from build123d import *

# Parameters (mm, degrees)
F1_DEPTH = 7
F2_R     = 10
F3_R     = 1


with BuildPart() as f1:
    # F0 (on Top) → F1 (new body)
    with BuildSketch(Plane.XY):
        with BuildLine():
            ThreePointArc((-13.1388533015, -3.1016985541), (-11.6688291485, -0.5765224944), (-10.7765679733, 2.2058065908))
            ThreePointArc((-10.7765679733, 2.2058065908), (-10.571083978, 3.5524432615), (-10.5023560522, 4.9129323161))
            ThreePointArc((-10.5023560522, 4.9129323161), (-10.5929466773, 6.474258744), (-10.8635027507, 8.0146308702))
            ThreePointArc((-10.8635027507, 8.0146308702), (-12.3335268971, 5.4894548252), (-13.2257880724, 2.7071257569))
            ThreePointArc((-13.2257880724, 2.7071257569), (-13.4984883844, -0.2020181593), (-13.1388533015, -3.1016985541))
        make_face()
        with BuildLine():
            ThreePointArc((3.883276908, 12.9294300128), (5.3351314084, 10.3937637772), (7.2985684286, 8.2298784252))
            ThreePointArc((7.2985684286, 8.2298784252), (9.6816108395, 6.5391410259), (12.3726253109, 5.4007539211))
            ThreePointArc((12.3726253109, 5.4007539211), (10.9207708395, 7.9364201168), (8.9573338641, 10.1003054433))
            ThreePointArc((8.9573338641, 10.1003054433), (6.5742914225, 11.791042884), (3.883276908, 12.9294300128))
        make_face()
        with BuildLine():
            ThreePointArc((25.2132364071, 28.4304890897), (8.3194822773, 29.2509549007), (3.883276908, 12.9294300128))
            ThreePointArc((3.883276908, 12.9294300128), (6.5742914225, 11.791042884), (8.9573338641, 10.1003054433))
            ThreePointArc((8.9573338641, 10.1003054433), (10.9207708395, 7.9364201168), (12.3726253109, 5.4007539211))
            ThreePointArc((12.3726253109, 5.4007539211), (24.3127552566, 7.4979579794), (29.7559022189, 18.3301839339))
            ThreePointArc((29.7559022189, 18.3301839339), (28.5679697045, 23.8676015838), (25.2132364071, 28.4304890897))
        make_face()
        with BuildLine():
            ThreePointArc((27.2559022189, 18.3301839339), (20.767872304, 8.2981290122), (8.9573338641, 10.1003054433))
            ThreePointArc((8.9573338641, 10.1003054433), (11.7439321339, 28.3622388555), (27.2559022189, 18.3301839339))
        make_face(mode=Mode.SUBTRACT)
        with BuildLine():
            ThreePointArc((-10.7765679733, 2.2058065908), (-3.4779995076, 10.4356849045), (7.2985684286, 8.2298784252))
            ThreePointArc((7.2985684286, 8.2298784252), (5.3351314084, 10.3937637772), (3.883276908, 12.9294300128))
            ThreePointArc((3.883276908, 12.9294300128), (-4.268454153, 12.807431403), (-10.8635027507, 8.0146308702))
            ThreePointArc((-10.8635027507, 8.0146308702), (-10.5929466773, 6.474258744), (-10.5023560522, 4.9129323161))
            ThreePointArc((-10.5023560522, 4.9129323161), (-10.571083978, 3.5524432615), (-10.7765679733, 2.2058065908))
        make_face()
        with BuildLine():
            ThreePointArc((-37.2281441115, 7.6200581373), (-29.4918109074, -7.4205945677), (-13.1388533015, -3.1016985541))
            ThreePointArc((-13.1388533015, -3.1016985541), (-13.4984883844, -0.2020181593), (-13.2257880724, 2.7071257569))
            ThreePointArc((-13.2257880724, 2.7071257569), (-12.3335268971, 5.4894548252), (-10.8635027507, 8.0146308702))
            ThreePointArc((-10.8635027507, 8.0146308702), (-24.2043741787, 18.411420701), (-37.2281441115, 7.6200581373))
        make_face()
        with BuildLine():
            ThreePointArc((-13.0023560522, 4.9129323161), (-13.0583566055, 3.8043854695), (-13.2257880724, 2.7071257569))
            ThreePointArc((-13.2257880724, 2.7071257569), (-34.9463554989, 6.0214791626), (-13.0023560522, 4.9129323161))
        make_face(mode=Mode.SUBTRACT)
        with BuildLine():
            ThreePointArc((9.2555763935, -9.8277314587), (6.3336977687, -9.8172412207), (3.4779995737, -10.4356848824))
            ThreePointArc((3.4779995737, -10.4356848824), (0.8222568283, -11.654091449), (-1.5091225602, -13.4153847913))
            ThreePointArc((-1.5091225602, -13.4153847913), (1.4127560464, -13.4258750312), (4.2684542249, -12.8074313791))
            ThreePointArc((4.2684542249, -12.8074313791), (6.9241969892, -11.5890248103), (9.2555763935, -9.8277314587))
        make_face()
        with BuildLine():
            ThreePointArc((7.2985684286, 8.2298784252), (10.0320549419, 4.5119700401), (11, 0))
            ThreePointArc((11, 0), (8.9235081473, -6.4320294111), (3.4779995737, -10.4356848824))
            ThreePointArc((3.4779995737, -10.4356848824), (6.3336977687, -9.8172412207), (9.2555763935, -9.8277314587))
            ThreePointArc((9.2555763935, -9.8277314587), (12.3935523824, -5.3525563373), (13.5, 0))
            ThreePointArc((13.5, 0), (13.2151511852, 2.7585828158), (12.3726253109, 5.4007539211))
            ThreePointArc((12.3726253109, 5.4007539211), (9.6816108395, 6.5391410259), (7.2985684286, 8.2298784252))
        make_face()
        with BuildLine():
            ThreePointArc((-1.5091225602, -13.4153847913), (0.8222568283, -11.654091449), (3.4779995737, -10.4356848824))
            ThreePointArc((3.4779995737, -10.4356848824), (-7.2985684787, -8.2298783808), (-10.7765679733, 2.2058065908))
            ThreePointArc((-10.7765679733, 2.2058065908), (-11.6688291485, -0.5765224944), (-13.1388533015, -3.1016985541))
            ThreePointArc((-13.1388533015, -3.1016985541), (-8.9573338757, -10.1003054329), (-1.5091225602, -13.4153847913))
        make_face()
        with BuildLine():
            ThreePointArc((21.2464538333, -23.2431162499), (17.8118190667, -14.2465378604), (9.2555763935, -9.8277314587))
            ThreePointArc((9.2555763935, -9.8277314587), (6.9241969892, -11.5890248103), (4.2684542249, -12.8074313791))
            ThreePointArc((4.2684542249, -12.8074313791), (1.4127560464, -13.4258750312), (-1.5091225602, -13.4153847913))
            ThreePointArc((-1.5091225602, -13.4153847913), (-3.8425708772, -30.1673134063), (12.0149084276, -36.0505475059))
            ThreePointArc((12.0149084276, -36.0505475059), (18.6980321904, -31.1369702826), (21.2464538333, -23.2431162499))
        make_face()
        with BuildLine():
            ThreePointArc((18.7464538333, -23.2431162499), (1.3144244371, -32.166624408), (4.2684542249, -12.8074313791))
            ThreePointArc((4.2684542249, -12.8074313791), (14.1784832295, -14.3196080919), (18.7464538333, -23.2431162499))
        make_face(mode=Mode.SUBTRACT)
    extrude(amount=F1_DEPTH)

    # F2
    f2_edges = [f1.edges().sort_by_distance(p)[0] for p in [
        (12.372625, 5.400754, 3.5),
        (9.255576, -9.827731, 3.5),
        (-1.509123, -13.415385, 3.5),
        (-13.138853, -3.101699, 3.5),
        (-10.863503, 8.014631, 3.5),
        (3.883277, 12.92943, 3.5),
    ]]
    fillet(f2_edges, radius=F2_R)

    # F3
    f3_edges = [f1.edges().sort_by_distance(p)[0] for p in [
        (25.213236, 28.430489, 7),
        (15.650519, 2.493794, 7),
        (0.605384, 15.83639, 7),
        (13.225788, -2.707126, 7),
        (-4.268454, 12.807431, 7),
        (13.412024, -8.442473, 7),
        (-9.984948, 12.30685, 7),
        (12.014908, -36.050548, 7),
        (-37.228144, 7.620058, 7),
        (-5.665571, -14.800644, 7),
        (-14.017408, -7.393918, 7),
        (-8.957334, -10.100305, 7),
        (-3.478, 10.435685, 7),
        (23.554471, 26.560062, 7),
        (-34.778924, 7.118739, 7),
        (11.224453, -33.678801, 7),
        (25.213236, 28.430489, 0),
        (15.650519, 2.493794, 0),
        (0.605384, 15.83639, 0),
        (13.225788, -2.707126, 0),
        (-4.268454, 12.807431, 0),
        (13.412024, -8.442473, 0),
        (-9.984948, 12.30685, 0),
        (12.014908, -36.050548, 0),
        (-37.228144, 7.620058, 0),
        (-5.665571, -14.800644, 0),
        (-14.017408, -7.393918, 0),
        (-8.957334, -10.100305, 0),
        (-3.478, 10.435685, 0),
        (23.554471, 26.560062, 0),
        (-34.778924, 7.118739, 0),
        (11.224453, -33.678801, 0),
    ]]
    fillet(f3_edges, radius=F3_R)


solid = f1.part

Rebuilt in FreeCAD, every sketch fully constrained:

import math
import FreeCAD as App
import Part
import Sketcher
from FreeCAD import Vector
Q = App.Units.Quantity


def edges_at(feature, points):
    """Names of the edges that pass closest to the given points."""
    edges = feature.Shape.Edges
    near = lambda p: min(range(len(edges)), key=lambda i: edges[i].distToShape(Part.Vertex(*p))[0])
    return sorted({f"Edge{near(p) + 1}" for p in points})

doc = App.newDocument("Part")
params = doc.addObject("Spreadsheet::Sheet", "Params")
for row, (alias, value) in enumerate([
    ("sketch1_radius", "11 mm"),
    ("sketch1_radius2", "13.5 mm"),
    ("pad1_length", "7 mm"),
    ("fillet_radius", "10 mm"),
    ("fillet2_radius", "1 mm"),
], start=1):
    params.set(f"A{row}", alias)
    params.set(f"B{row}", "=" + value)
    params.setAlias(f"B{row}", alias)

body = doc.addObject("PartDesign::Body", "Body")

sketch1 = body.newObject("Sketcher::SketchObject", "Sketch")
sketch1.AttachmentSupport = (doc.getObject("XY_Plane"), [""])
sketch1.MapMode = "FlatFace"
sketch1.addGeometry(Part.ArcOfCircle(Part.Circle(Vector(0, 0, 0), Vector(0, 0, 1), 13.5), math.radians(-47), math.radians(0)), False)
sketch1.addGeometry(Part.ArcOfCircle(Part.Circle(Vector(0, 0, 0), Vector(0, 0, 1), 13.5), math.radians(0), math.radians(24)), False)
sketch1.addGeometry(Part.ArcOfCircle(Part.Circle(Vector(16.3, 18.3, 0), Vector(0, 0, 1), 13.5), math.radians(-107), math.radians(0)), False)
sketch1.addGeometry(Part.ArcOfCircle(Part.Circle(Vector(16.3, 18.3, 0), Vector(0, 0, 1), 13.5), math.radians(0), math.radians(48)), False)
sketch1.addGeometry(Part.ArcOfCircle(Part.Circle(Vector(16.3, 18.3, 0), Vector(0, 0, 1), 13.5), math.radians(48), math.radians(204)), False)
sketch1.addGeometry(Part.ArcOfCircle(Part.Circle(Vector(0, 0, 0), Vector(0, 0, 1), 13.5), math.radians(73), math.radians(144)), False)
sketch1.addGeometry(Part.ArcOfCircle(Part.Circle(Vector(-24, 4.9, 0), Vector(0, 0, 1), 13.5), math.radians(13), math.radians(168)), False)
sketch1.addGeometry(Part.ArcOfCircle(Part.Circle(Vector(-24, 4.9, 0), Vector(0, 0, 1), 13.5), math.radians(168), math.radians(324)), False)
sketch1.addGeometry(Part.ArcOfCircle(Part.Circle(Vector(0, 0, 0), Vector(0, 0, 1), 13.5), math.radians(-167), math.radians(-96)), False)
sketch1.addGeometry(Part.ArcOfCircle(Part.Circle(Vector(7.7, -23.2, 0), Vector(0, 0, 1), 13.5), math.radians(133), math.radians(288)), False)
sketch1.addGeometry(Part.ArcOfCircle(Part.Circle(Vector(7.7, -23.2, 0), Vector(0, 0, 1), 13.5), math.radians(-72), math.radians(0)), False)
sketch1.addGeometry(Part.ArcOfCircle(Part.Circle(Vector(7.7, -23.2, 0), Vector(0, 0, 1), 13.5), math.radians(0), math.radians(84)), False)
sketch1.addGeometry(Part.ArcOfCircle(Part.Circle(Vector(7.7, -23.2, 0), Vector(0, 0, 1), 11), math.radians(0), math.radians(108)), False)
sketch1.addGeometry(Part.ArcOfCircle(Part.Circle(Vector(7.7, -23.2, 0), Vector(0, 0, 1), 11), math.radians(108), math.radians(360)), False)
sketch1.addGeometry(Part.ArcOfCircle(Part.Circle(Vector(-24, 4.9, 0), Vector(0, 0, 1), 11), math.radians(0), math.radians(348)), False)
sketch1.addGeometry(Part.ArcOfCircle(Part.Circle(Vector(-24, 4.9, 0), Vector(0, 0, 1), 11), math.radians(-11.57), math.radians(0)), False)
sketch1.addGeometry(Part.ArcOfCircle(Part.Circle(Vector(0, 0, 0), Vector(0, 0, 1), 11), math.radians(0), math.radians(168)), False)
sketch1.addGeometry(Part.ArcOfCircle(Part.Circle(Vector(0, 0, 0), Vector(0, 0, 1), 11), math.radians(-72), math.radians(0)), False)
sketch1.addGeometry(Part.ArcOfCircle(Part.Circle(Vector(0, 0, 0), Vector(0, 0, 1), 11), math.radians(168), math.radians(288)), False)
sketch1.addGeometry(Part.ArcOfCircle(Part.Circle(Vector(16.3, 18.3, 0), Vector(0, 0, 1), 11), math.radians(-132), math.radians(0)), False)
sketch1.addGeometry(Part.ArcOfCircle(Part.Circle(Vector(16.3, 18.3, 0), Vector(0, 0, 1), 11), math.radians(0), math.radians(228)), False)
sketch1.addConstraint(Sketcher.Constraint("Tangent", 0, 2, 1, 1))
sketch1.addConstraint(Sketcher.Constraint("Coincident", 1, 2, 2, 1))
sketch1.addConstraint(Sketcher.Constraint("Tangent", 2, 2, 3, 1))
sketch1.addConstraint(Sketcher.Constraint("Tangent", 3, 2, 4, 1))
sketch1.addConstraint(Sketcher.Constraint("Coincident", 4, 2, 5, 1))
sketch1.addConstraint(Sketcher.Constraint("Coincident", 5, 2, 6, 1))
sketch1.addConstraint(Sketcher.Constraint("Tangent", 6, 2, 7, 1))
sketch1.addConstraint(Sketcher.Constraint("Coincident", 7, 2, 8, 1))
sketch1.addConstraint(Sketcher.Constraint("Coincident", 8, 2, 9, 1))
sketch1.addConstraint(Sketcher.Constraint("Tangent", 9, 2, 10, 1))
sketch1.addConstraint(Sketcher.Constraint("Tangent", 10, 2, 11, 1))
sketch1.addConstraint(Sketcher.Constraint("Coincident", 11, 2, 0, 1))
sketch1.addConstraint(Sketcher.Constraint("Tangent", 12, 1, 13, 2))
sketch1.addConstraint(Sketcher.Constraint("Coincident", 13, 1, 12, 2))
sketch1.addConstraint(Sketcher.Constraint("Tangent", 14, 1, 15, 2))
sketch1.addConstraint(Sketcher.Constraint("Coincident", 15, 1, 14, 2))
sketch1.addConstraint(Sketcher.Constraint("Tangent", 16, 1, 17, 2))
sketch1.addConstraint(Sketcher.Constraint("Tangent", 17, 1, 18, 2))
sketch1.addConstraint(Sketcher.Constraint("Tangent", 18, 1, 16, 2))
sketch1.addConstraint(Sketcher.Constraint("Tangent", 19, 1, 20, 2))
sketch1.addConstraint(Sketcher.Constraint("Coincident", 20, 1, 19, 2))
sketch1.addConstraint(Sketcher.Constraint("Coincident", 0, 3, -1, 1))
sketch1.addConstraint(Sketcher.Constraint("Coincident", 5, 3, -1, 1))
sketch1.addConstraint(Sketcher.Constraint("Coincident", 8, 3, -1, 1))
sketch1.addConstraint(Sketcher.Constraint("Coincident", 16, 3, -1, 1))
sketch1.addConstraint(Sketcher.Constraint("Coincident", 4, 3, 2, 3))
sketch1.addConstraint(Sketcher.Constraint("Coincident", 11, 3, 9, 3))
sketch1.addConstraint(Sketcher.Constraint("Coincident", 12, 3, 9, 3))
sketch1.addConstraint(Sketcher.Constraint("Coincident", 14, 3, 6, 3))
sketch1.addConstraint(Sketcher.Constraint("Coincident", 19, 3, 2, 3))
sketch1.addConstraint(Sketcher.Constraint("Equal", 0, 1))
sketch1.addConstraint(Sketcher.Constraint("Equal", 1, 2))
sketch1.addConstraint(Sketcher.Constraint("Equal", 4, 5))
sketch1.addConstraint(Sketcher.Constraint("Equal", 5, 6))
sketch1.addConstraint(Sketcher.Constraint("Equal", 6, 7))
sketch1.addConstraint(Sketcher.Constraint("Equal", 7, 8))
sketch1.addConstraint(Sketcher.Constraint("Equal", 8, 9))
sketch1.addConstraint(Sketcher.Constraint("Equal", 13, 14))
sketch1.addConstraint(Sketcher.Constraint("Equal", 15, 16))
sketch1.addConstraint(Sketcher.Constraint("Equal", 18, 19))
sketch1.addConstraint(Sketcher.Constraint("PointOnObject", 0, 2, -1))
sketch1.addConstraint(Sketcher.Constraint("PointOnObject", 16, 1, -1))
sketch1.addConstraint(Sketcher.Constraint("Horizontal", 20, 3, 2, 2))
sketch1.addConstraint(Sketcher.Constraint("Horizontal", 13, 3, 10, 2))
sketch1.addConstraint(Sketcher.Constraint("Horizontal", 10, 2, 12, 1))
sketch1.addConstraint(Sketcher.Constraint("Horizontal", 15, 3, 14, 1))
sketch1.addConstraint(Sketcher.Constraint("Horizontal", 2, 2, 20, 1))
sketch1.addConstraint(Sketcher.Constraint("Radius", 12, Q("11 mm")))
sketch1.addConstraint(Sketcher.Constraint("Radius", 0, Q("13.5 mm")))
sketch1.addConstraint(Sketcher.Constraint("DistanceX", -1, 1, 17, 1, Q("3.478 mm")))
sketch1.addConstraint(Sketcher.Constraint("DistanceX", 13, 1, 9, 3, Q("3.478 mm")))
sketch1.addConstraint(Sketcher.Constraint("DistanceY", 7, 2, -1, 1, Q("3.101699 mm")))
sketch1.addConstraint(Sketcher.Constraint("DistanceX", 8, 2, 11, 2, Q("10.764699 mm")))
sketch1.addConstraint(Sketcher.Constraint("DistanceY", 13, 1, 11, 2, Q("2.9797 mm")))
sketch1.addConstraint(Sketcher.Constraint("DistanceY", -1, 1, 3, 2, Q("28.430489 mm")))
sketch1.addConstraint(Sketcher.Constraint("DistanceY", -1, 1, 4, 2, Q("12.92943 mm")))
sketch1.addConstraint(Sketcher.Constraint("DistanceY", -1, 1, 5, 2, Q("8.014631 mm")))
sketch1.addConstraint(Sketcher.Constraint("DistanceY", -1, 1, 6, 2, Q("7.620058 mm")))
sketch1.addConstraint(Sketcher.Constraint("DistanceX", -1, 1, 9, 2, Q("12.014908 mm")))
sketch1.addConstraint(Sketcher.Constraint("DistanceX", 15, 1, -1, 1, Q("13.225788 mm")))
sketch1.addConstraint(Sketcher.Constraint("DistanceX", 6, 3, 2, 3, Q("40.258258 mm")))
sketch1.addConstraint(Sketcher.Constraint("DistanceX", 15, 1, 18, 1, Q("2.44922 mm")))
sketch1.addConstraint(Sketcher.Constraint("DistanceX", 19, 1, 1, 2, Q("3.415291 mm")))
sketch1.setExpression("Constraints[47]", "Params.sketch1_radius")
sketch1.setExpression("Constraints[48]", "Params.sketch1_radius2")
pad1 = body.newObject("PartDesign::Pad", "Pad")
pad1.Profile = sketch1
pad1.setExpression("Length", "Params.pad1_length")
doc.recompute()

fillet = body.newObject("PartDesign::Fillet", "Fillet")
fillet.Base = (pad1, edges_at(pad1, [
    (12.373, 5.401, 3.5),
    (9.256, -9.828, 3.5),
    (-1.509, -13.415, 3.5),
    (-13.139, -3.102, 3.5),
    (-10.864, 8.015, 3.5),
    (3.883, 12.929, 3.5),
]))
fillet.setExpression("Radius", "Params.fillet_radius")
doc.recompute()

fillet2 = body.newObject("PartDesign::Fillet", "Fillet001")
fillet2.Base = (fillet, edges_at(fillet, [
    (11.829, 31.084, 7),
    (15.651, 2.494, 7),
    (0.605, 15.836, 7),
    (13.226, -2.707, 7),
    (-4.268, 12.807, 7),
    (13.412, -8.442, 7),
    (-9.985, 12.307, 7),
    (-1.335, -33.232, 7),
    (-32.834, -5.297, 7),
    (-5.666, -14.801, 7),
    (-14.017, -7.394, 7),
    (-8.957, -10.1, 7),
    (1.109, 10.944, 7),
    (11.744, 28.362, 7),
    (-34.946, 6.021, 7),
    (1.314, -32.167, 7),
    (11.829, 31.084, 0),
    (15.651, 2.494, 0),
    (0.605, 15.836, 0),
    (13.226, -2.707, 0),
    (-4.268, 12.807, 0),
    (13.412, -8.442, 0),
    (-9.985, 12.307, 0),
    (-1.335, -33.232, 0),
    (-32.834, -5.297, 0),
    (-5.666, -14.801, 0),
    (-14.017, -7.394, 0),
    (-8.957, -10.1, 0),
    (1.109, 10.944, 0),
    (11.744, 28.362, 0),
    (-34.946, 6.021, 0),
    (1.314, -32.167, 0),
]))
fillet2.setExpression("Radius", "Params.fillet2_radius")

doc.recompute()
